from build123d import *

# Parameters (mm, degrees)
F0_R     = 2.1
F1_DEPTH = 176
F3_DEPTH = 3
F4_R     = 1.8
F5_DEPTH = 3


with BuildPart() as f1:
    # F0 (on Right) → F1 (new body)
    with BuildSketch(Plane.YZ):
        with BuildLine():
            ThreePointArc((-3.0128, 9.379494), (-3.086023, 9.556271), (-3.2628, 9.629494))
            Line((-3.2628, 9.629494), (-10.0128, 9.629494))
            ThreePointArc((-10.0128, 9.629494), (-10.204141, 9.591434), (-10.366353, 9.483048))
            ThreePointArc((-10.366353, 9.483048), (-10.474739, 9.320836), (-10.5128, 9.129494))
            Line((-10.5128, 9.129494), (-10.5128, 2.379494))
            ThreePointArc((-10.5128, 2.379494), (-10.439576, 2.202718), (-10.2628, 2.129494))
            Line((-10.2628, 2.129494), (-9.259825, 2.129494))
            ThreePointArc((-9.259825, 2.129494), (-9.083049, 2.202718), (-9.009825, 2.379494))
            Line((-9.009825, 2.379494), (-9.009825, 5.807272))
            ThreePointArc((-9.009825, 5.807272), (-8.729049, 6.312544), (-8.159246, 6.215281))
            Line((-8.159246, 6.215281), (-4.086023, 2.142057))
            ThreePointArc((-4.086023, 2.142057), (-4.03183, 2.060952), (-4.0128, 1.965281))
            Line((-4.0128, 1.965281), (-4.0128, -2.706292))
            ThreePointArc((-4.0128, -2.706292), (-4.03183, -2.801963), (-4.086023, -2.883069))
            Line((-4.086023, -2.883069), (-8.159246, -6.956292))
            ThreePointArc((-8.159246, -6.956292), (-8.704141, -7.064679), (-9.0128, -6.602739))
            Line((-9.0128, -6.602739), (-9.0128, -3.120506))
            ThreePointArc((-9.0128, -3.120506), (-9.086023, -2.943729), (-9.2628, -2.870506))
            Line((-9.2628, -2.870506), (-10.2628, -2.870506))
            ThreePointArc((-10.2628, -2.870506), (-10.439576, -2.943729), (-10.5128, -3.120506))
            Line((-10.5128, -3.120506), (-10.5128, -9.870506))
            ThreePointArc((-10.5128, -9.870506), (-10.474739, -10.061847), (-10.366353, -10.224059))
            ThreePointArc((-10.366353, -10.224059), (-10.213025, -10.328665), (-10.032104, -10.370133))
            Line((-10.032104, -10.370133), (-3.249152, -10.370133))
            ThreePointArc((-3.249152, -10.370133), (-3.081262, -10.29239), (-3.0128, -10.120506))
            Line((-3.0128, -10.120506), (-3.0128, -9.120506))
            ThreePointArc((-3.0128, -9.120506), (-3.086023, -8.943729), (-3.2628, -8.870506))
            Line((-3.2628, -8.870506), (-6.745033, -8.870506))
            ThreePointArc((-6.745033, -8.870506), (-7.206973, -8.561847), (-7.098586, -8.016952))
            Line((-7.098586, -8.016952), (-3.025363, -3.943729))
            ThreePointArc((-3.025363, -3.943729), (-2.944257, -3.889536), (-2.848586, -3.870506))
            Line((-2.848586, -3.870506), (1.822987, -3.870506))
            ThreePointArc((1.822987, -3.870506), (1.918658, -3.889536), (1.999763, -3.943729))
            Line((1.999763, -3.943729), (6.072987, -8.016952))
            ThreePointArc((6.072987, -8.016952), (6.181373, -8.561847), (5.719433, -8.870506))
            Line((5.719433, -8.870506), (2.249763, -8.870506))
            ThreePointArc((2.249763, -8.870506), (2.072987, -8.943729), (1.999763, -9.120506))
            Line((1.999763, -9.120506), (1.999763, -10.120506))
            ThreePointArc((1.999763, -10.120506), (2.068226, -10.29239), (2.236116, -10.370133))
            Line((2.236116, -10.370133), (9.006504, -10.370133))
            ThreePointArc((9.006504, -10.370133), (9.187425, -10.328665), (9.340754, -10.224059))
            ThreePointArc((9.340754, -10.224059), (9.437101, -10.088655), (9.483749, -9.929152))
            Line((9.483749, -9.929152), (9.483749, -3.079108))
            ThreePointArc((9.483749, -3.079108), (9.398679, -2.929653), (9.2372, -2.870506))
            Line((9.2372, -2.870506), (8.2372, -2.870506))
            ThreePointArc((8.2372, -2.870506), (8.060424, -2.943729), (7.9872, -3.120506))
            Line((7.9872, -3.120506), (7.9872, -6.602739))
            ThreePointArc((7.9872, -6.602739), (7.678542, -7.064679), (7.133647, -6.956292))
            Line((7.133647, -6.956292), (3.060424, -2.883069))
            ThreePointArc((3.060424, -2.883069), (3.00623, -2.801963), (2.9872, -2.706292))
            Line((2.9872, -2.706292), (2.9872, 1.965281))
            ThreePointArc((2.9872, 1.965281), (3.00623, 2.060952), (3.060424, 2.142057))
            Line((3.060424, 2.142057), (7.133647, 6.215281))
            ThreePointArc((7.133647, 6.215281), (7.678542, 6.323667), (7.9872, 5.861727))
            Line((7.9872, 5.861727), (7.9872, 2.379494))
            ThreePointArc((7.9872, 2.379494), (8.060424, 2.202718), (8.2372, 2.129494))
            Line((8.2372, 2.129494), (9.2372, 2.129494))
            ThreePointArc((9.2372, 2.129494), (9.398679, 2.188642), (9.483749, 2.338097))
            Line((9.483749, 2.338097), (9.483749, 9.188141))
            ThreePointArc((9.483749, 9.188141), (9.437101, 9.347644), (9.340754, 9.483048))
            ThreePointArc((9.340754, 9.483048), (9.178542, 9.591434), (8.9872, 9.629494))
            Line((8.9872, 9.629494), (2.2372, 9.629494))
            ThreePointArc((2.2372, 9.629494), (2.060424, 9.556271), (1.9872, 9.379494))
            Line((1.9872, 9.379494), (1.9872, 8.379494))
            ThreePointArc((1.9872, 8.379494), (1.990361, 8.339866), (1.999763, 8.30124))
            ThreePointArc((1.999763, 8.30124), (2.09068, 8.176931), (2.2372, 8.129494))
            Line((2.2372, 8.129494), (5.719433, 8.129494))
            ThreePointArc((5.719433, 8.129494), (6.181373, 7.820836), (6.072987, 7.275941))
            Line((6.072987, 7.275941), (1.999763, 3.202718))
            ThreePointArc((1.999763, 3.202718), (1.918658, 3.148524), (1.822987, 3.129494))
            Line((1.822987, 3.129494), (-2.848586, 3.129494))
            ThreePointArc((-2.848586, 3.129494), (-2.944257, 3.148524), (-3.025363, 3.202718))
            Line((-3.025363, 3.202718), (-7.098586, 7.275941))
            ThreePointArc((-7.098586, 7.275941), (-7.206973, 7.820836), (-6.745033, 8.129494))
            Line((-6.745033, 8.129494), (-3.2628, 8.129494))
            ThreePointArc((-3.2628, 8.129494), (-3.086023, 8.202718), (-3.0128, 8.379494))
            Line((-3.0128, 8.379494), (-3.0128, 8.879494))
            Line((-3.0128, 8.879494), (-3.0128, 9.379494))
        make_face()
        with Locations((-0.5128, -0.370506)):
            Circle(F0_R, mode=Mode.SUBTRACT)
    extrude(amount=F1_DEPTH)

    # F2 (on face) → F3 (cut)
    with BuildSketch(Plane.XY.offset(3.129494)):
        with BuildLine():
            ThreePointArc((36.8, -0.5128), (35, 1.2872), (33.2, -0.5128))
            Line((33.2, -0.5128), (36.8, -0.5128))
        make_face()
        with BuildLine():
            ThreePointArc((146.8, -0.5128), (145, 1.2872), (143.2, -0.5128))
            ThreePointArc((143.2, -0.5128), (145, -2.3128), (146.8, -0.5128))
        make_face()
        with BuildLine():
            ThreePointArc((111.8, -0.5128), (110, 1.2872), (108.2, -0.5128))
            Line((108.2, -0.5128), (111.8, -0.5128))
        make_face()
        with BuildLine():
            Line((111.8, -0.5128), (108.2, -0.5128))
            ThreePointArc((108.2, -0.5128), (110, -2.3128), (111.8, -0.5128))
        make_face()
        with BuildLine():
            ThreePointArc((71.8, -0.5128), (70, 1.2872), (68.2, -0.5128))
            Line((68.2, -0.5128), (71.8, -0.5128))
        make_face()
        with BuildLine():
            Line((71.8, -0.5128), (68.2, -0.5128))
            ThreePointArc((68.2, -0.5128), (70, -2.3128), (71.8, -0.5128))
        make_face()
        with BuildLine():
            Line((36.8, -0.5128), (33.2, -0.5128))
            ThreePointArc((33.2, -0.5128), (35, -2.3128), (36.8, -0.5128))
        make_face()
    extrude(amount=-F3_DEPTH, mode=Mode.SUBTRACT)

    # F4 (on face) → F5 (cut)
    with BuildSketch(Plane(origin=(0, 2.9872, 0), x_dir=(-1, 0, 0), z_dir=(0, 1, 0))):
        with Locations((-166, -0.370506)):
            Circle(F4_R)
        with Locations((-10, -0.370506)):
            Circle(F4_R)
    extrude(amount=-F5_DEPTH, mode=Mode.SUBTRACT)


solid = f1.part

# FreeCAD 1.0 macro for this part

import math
import FreeCAD as App
import Part
import Sketcher
from FreeCAD import Vector

doc = App.newDocument("Part")
params = doc.addObject("Spreadsheet::Sheet", "Params")
for row, (alias, value) in enumerate([
    ("sketch1_diameter", "4.2 mm"),
    ("sketch1_radius", "0.500002 mm"),
    ("sketch1_width", "1 mm"),
    ("sketch1_radius2", "0.249999 mm"),
    ("sketch1_width2", "6.75 mm"),
    ("pad1_length", "176 mm"),
    ("sketch2_diameter", "3.6 mm"),
    ("pocket1_length", "3 mm"),
    ("sketch3_diameter", "3.6 mm"),
    ("pocket2_length", "3 mm"),
], start=1):
    params.set(f"A{row}", alias)
    params.set(f"B{row}", "=" + value)
    params.setAlias(f"B{row}", alias)

body = doc.addObject("PartDesign::Body", "Body")

sketch1 = body.newObject("Sketcher::SketchObject", "Sketch")
sketch1.AttachmentSupport = (doc.getObject("YZ_Plane"), [""])
sketch1.MapMode = "FlatFace"
sketch1.addGeometry(Part.ArcOfCircle(Part.Circle(Vector(-3.26, 9.38, 0), Vector(0, 0, 1), 0.25), math.radians(0), math.radians(90)), False)
sketch1.addGeometry(Part.LineSegment(Vector(-3.26, 9.63, 0), Vector(-10.01, 9.63, 0)), False)
sketch1.addGeometry(Part.ArcOfCircle(Part.Circle(Vector(-10.01, 9.13, 0), Vector(0, 0, 1), 0.5), math.radians(90), math.radians(135)), False)
sketch1.addGeometry(Part.ArcOfCircle(Part.Circle(Vector(-10.01, 9.13, 0), Vector(0, 0, 1), 0.5), math.radians(135), math.radians(180)), False)
sketch1.addGeometry(Part.LineSegment(Vector(-10.51, 9.13, 0), Vector(-10.51, 2.38, 0)), False)
sketch1.addGeometry(Part.ArcOfCircle(Part.Circle(Vector(-10.26, 2.38, 0), Vector(0, 0, 1), 0.25), math.radians(-180), math.radians(-90)), False)
sketch1.addGeometry(Part.LineSegment(Vector(-10.26, 2.13, 0), Vector(-9.26, 2.13, 0)), False)
sketch1.addGeometry(Part.ArcOfCircle(Part.Circle(Vector(-9.26, 2.38, 0), Vector(0, 0, 1), 0.25), math.radians(-90), math.radians(0)), False)
sketch1.addGeometry(Part.LineSegment(Vector(-9.01, 2.38, 0), Vector(-9.01, 5.81, 0)), False)
sketch1.addGeometry(Part.ArcOfCircle(Part.Circle(Vector(-8.51, 5.86, 0), Vector(0, 0, 1), 0.5), math.radians(45), math.radians(186)), False)
sketch1.addGeometry(Part.LineSegment(Vector(-8.16, 6.22, 0), Vector(-4.09, 2.14, 0)), False)
sketch1.addGeometry(Part.ArcOfCircle(Part.Circle(Vector(-4.26, 1.97, 0), Vector(0, 0, 1), 0.25), math.radians(0), math.radians(45)), False)
sketch1.addGeometry(Part.LineSegment(Vector(-4.01, 1.97, 0), Vector(-4.01, -2.71, 0)), False)
sketch1.addGeometry(Part.ArcOfCircle(Part.Circle(Vector(-4.26, -2.71, 0), Vector(0, 0, 1), 0.25), math.radians(-45), math.radians(0)), False)
sketch1.addGeometry(Part.LineSegment(Vector(-4.09, -2.88, 0), Vector(-8.16, -6.96, 0)), False)
sketch1.addGeometry(Part.ArcOfCircle(Part.Circle(Vector(-8.51, -6.6, 0), Vector(0, 0, 1), 0.5), math.radians(-180), math.radians(-45)), False)
sketch1.addGeometry(Part.LineSegment(Vector(-9.01, -6.6, 0), Vector(-9.01, -3.12, 0)), False)
sketch1.addGeometry(Part.ArcOfCircle(Part.Circle(Vector(-9.26, -3.12, 0), Vector(0, 0, 1), 0.25), math.radians(0), math.radians(90)), False)
sketch1.addGeometry(Part.LineSegment(Vector(-9.26, -2.87, 0), Vector(-10.26, -2.87, 0)), False)
sketch1.addGeometry(Part.ArcOfCircle(Part.Circle(Vector(-10.26, -3.12, 0), Vector(0, 0, 1), 0.25), math.radians(90), math.radians(180)), False)
sketch1.addGeometry(Part.LineSegment(Vector(-10.51, -3.12, 0), Vector(-10.51, -9.87, 0)), False)
sketch1.addGeometry(Part.ArcOfCircle(Part.Circle(Vector(-10.01, -9.87, 0), Vector(0, 0, 1), 0.5), math.radians(-180), math.radians(-135)), False)
sketch1.addGeometry(Part.ArcOfCircle(Part.Circle(Vector(-10.01, -9.87, 0), Vector(0, 0, 1), 0.5), math.radians(-135), math.radians(-92)), False)
sketch1.addGeometry(Part.LineSegment(Vector(-10.03, -10.37, 0), Vector(-3.25, -10.37, 0)), False)
sketch1.addGeometry(Part.ArcOfCircle(Part.Circle(Vector(-3.26, -10.12, 0), Vector(0, 0, 1), 0.25), math.radians(-87), math.radians(0)), False)
sketch1.addGeometry(Part.LineSegment(Vector(-3.01, -10.12, 0), Vector(-3.01, -9.12, 0)), False)
sketch1.addGeometry(Part.ArcOfCircle(Part.Circle(Vector(-3.26, -9.12, 0), Vector(0, 0, 1), 0.25), math.radians(0), math.radians(90)), False)
sketch1.addGeometry(Part.LineSegment(Vector(-3.26, -8.87, 0), Vector(-6.75, -8.87, 0)), False)
sketch1.addGeometry(Part.ArcOfCircle(Part.Circle(Vector(-6.75, -8.37, 0), Vector(0, 0, 1), 0.5), math.radians(135), math.radians(270)), False)
sketch1.addGeometry(Part.LineSegment(Vector(-7.1, -8.02, 0), Vector(-3.03, -3.94, 0)), False)
sketch1.addGeometry(Part.ArcOfCircle(Part.Circle(Vector(-2.85, -4.12, 0), Vector(0, 0, 1), 0.25), math.radians(90), math.radians(135)), False)
sketch1.addGeometry(Part.LineSegment(Vector(-2.85, -3.87, 0), Vector(1.82, -3.87, 0)), False)
sketch1.addGeometry(Part.ArcOfCircle(Part.Circle(Vector(1.82, -4.12, 0), Vector(0, 0, 1), 0.25), math.radians(45), math.radians(90)), False)
sketch1.addGeometry(Part.LineSegment(Vector(2, -3.94, 0), Vector(6.07, -8.02, 0)), False)
sketch1.addGeometry(Part.ArcOfCircle(Part.Circle(Vector(5.72, -8.37, 0), Vector(0, 0, 1), 0.5), math.radians(-90), math.radians(45)), False)
sketch1.addGeometry(Part.LineSegment(Vector(5.72, -8.87, 0), Vector(2.25, -8.87, 0)), False)
sketch1.addGeometry(Part.ArcOfCircle(Part.Circle(Vector(2.25, -9.12, 0), Vector(0, 0, 1), 0.25), math.radians(90), math.radians(180)), False)
sketch1.addGeometry(Part.LineSegment(Vector(2, -9.12, 0), Vector(2, -10.12, 0)), False)
sketch1.addGeometry(Part.ArcOfCircle(Part.Circle(Vector(2.25, -10.12, 0), Vector(0, 0, 1), 0.25), math.radians(-180), math.radians(-93)), False)
sketch1.addGeometry(Part.LineSegment(Vector(2.24, -10.37, 0), Vector(9.01, -10.37, 0)), False)
sketch1.addGeometry(Part.ArcOfCircle(Part.Circle(Vector(8.99, -9.87, 0), Vector(0, 0, 1), 0.5), math.radians(-88), math.radians(-45)), False)
sketch1.addGeometry(Part.ArcOfCircle(Part.Circle(Vector(8.99, -9.87, 0), Vector(0, 0, 1), 0.5), math.radians(-45), math.radians(-7)), False)
sketch1.addGeometry(Part.LineSegment(Vector(9.48, -9.93, 0), Vector(9.48, -3.08, 0)), False)
sketch1.addGeometry(Part.ArcOfCircle(Part.Circle(Vector(9.24, -3.12, 0), Vector(0, 0, 1), 0.25), math.radians(10), math.radians(90)), False)
sketch1.addGeometry(Part.LineSegment(Vector(9.24, -2.87, 0), Vector(8.24, -2.87, 0)), False)
sketch1.addGeometry(Part.ArcOfCircle(Part.Circle(Vector(8.24, -3.12, 0), Vector(0, 0, 1), 0.25), math.radians(90), math.radians(180)), False)
sketch1.addGeometry(Part.LineSegment(Vector(7.99, -3.12, 0), Vector(7.99, -6.6, 0)), False)
sketch1.addGeometry(Part.ArcOfCircle(Part.Circle(Vector(7.49, -6.6, 0), Vector(0, 0, 1), 0.5), math.radians(-135), math.radians(0)), False)
sketch1.addGeometry(Part.LineSegment(Vector(7.13, -6.96, 0), Vector(3.06, -2.88, 0)), False)
sketch1.addGeometry(Part.ArcOfCircle(Part.Circle(Vector(3.24, -2.71, 0), Vector(0, 0, 1), 0.25), math.radians(180), math.radians(225)), False)
sketch1.addGeometry(Part.LineSegment(Vector(2.99, -2.71, 0), Vector(2.99, 1.97, 0)), False)
sketch1.addGeometry(Part.ArcOfCircle(Part.Circle(Vector(3.24, 1.97, 0), Vector(0, 0, 1), 0.25), math.radians(135), math.radians(180)), False)
sketch1.addGeometry(Part.LineSegment(Vector(3.06, 2.14, 0), Vector(7.13, 6.22, 0)), False)
sketch1.addGeometry(Part.ArcOfCircle(Part.Circle(Vector(7.49, 5.86, 0), Vector(0, 0, 1), 0.5), math.radians(0), math.radians(135)), False)
sketch1.addGeometry(Part.LineSegment(Vector(7.99, 5.86, 0), Vector(7.99, 2.38, 0)), False)
sketch1.addGeometry(Part.ArcOfCircle(Part.Circle(Vector(8.24, 2.38, 0), Vector(0, 0, 1), 0.25), math.radians(-180), math.radians(-90)), False)
sketch1.addGeometry(Part.LineSegment(Vector(8.24, 2.13, 0), Vector(9.24, 2.13, 0)), False)
sketch1.addGeometry(Part.ArcOfCircle(Part.Circle(Vector(9.24, 2.38, 0), Vector(0, 0, 1), 0.25), math.radians(-90), math.radians(-10)), False)
sketch1.addGeometry(Part.LineSegment(Vector(9.48, 2.34, 0), Vector(9.48, 9.19, 0)), False)
sketch1.addGeometry(Part.ArcOfCircle(Part.Circle(Vector(8.99, 9.13, 0), Vector(0, 0, 1), 0.5), math.radians(7), math.radians(45)), False)
sketch1.addGeometry(Part.ArcOfCircle(Part.Circle(Vector(8.99, 9.13, 0), Vector(0, 0, 1), 0.5), math.radians(45), math.radians(90)), False)
sketch1.addGeometry(Part.LineSegment(Vector(8.99, 9.63, 0), Vector(2.24, 9.63, 0)), False)
sketch1.addGeometry(Part.ArcOfCircle(Part.Circle(Vector(2.24, 9.38, 0), Vector(0, 0, 1), 0.25), math.radians(90), math.radians(180)), False)
sketch1.addGeometry(Part.LineSegment(Vector(1.99, 9.38, 0), Vector(1.99, 8.38, 0)), False)
sketch1.addGeometry(Part.ArcOfCircle(Part.Circle(Vector(2.24, 8.38, 0), Vector(0, 0, 1), 0.25), math.radians(-180), math.radians(-161.76)), False)
sketch1.addGeometry(Part.ArcOfCircle(Part.Circle(Vector(2.24, 8.38, 0), Vector(0, 0, 1), 0.25), math.radians(-162), math.radians(-90)), False)
sketch1.addGeometry(Part.LineSegment(Vector(2.24, 8.13, 0), Vector(5.72, 8.13, 0)), False)
sketch1.addGeometry(Part.ArcOfCircle(Part.Circle(Vector(5.72, 7.63, 0), Vector(0, 0, 1), 0.5), math.radians(-45), math.radians(90)), False)
sketch1.addGeometry(Part.LineSegment(Vector(6.07, 7.28, 0), Vector(2, 3.2, 0)), False)
sketch1.addGeometry(Part.ArcOfCircle(Part.Circle(Vector(1.82, 3.38, 0), Vector(0, 0, 1), 0.25), math.radians(-90), math.radians(-45)), False)
sketch1.addGeometry(Part.LineSegment(Vector(1.82, 3.13, 0), Vector(-2.85, 3.13, 0)), False)
sketch1.addGeometry(Part.ArcOfCircle(Part.Circle(Vector(-2.85, 3.38, 0), Vector(0, 0, 1), 0.25), math.radians(-135), math.radians(-90)), False)
sketch1.addGeometry(Part.LineSegment(Vector(-3.03, 3.2, 0), Vector(-7.1, 7.28, 0)), False)
sketch1.addGeometry(Part.ArcOfCircle(Part.Circle(Vector(-6.75, 7.63, 0), Vector(0, 0, 1), 0.5), math.radians(90), math.radians(225)), False)
sketch1.addGeometry(Part.LineSegment(Vector(-6.75, 8.13, 0), Vector(-3.26, 8.13, 0)), False)
sketch1.addGeometry(Part.ArcOfCircle(Part.Circle(Vector(-3.26, 8.38, 0), Vector(0, 0, 1), 0.25), math.radians(-90), math.radians(0)), False)
sketch1.addGeometry(Part.LineSegment(Vector(-3.01, 8.38, 0), Vector(-3.01, 9.38, 0)), False)
sketch1.addGeometry(Part.Circle(Vector(-0.51, -0.37, 0), Vector(0, 0, 1), 2.1), False)
sketch1.addConstraint(Sketcher.Constraint("Coincident", 0, 2, 1, 1))
sketch1.addConstraint(Sketcher.Constraint("Tangent", 1, 2, 2, 1))
sketch1.addConstraint(Sketcher.Constraint("Coincident", 2, 2, 3, 1))
sketch1.addConstraint(Sketcher.Constraint("Coincident", 3, 2, 4, 1))
sketch1.addConstraint(Sketcher.Constraint("Coincident", 4, 2, 5, 1))
sketch1.addConstraint(Sketcher.Constraint("Coincident", 5, 2, 6, 1))
sketch1.addConstraint(Sketcher.Constraint("Coincident", 6, 2, 7, 1))
sketch1.addConstraint(Sketcher.Constraint("Coincident", 7, 2, 8, 1))
sketch1.addConstraint(Sketcher.Constraint("Coincident", 8, 2, 9, 2))
sketch1.addConstraint(Sketcher.Constraint("Tangent", 9, 1, 10, 1))
sketch1.addConstraint(Sketcher.Constraint("Coincident", 10, 2, 11, 2))
sketch1.addConstraint(Sketcher.Constraint("Coincident", 11, 1, 12, 1))
sketch1.addConstraint(Sketcher.Constraint("Tangent", 12, 2, 13, 2))
sketch1.addConstraint(Sketcher.Constraint("Coincident", 13, 1, 14, 1))
sketch1.addConstraint(Sketcher.Constraint("Tangent", 14, 2, 15, 2))
sketch1.addConstraint(Sketcher.Constraint("Tangent", 15, 1, 16, 1))
sketch1.addConstraint(Sketcher.Constraint("Coincident", 16, 2, 17, 1))
sketch1.addConstraint(Sketcher.Constraint("Coincident", 17, 2, 18, 1))
sketch1.addConstraint(Sketcher.Constraint("Coincident", 18, 2, 19, 1))
sketch1.addConstraint(Sketcher.Constraint("Coincident", 19, 2, 20, 1))
sketch1.addConstraint(Sketcher.Constraint("Coincident", 20, 2, 21, 1))
sketch1.addConstraint(Sketcher.Constraint("Coincident", 21, 2, 22, 1))
sketch1.addConstraint(Sketcher.Constraint("Coincident", 22, 2, 23, 1))
sketch1.addConstraint(Sketcher.Constraint("Coincident", 23, 2, 24, 1))
sketch1.addConstraint(Sketcher.Constraint("Coincident", 24, 2, 25, 1))
sketch1.addConstraint(Sketcher.Constraint("Coincident", 25, 2, 26, 1))
sketch1.addConstraint(Sketcher.Constraint("Coincident", 26, 2, 27, 1))
sketch1.addConstraint(Sketcher.Constraint("Tangent", 27, 2, 28, 2))
sketch1.addConstraint(Sketcher.Constraint("Tangent", 28, 1, 29, 1))
sketch1.addConstraint(Sketcher.Constraint("Coincident", 29, 2, 30, 2))
sketch1.addConstraint(Sketcher.Constraint("Tangent", 30, 1, 31, 1))
sketch1.addConstraint(Sketcher.Constraint("Coincident", 31, 2, 32, 2))
sketch1.addConstraint(Sketcher.Constraint("Coincident", 32, 1, 33, 1))
sketch1.addConstraint(Sketcher.Constraint("Tangent", 33, 2, 34, 2))
sketch1.addConstraint(Sketcher.Constraint("Tangent", 34, 1, 35, 1))
sketch1.addConstraint(Sketcher.Constraint("Coincident", 35, 2, 36, 1))
sketch1.addConstraint(Sketcher.Constraint("Coincident", 36, 2, 37, 1))
sketch1.addConstraint(Sketcher.Constraint("Coincident", 37, 2, 38, 1))
sketch1.addConstraint(Sketcher.Constraint("Coincident", 38, 2, 39, 1))
sketch1.addConstraint(Sketcher.Constraint("Coincident", 39, 2, 40, 1))
sketch1.addConstraint(Sketcher.Constraint("Coincident", 40, 2, 41, 1))
sketch1.addConstraint(Sketcher.Constraint("Coincident", 41, 2, 42, 1))
sketch1.addConstraint(Sketcher.Constraint("Coincident", 42, 2, 43, 1))
sketch1.addConstraint(Sketcher.Constraint("Coincident", 43, 2, 44, 1))
sketch1.addConstraint(Sketcher.Constraint("Coincident", 44, 2, 45, 1))
sketch1.addConstraint(Sketcher.Constraint("Coincident", 45, 2, 46, 1))
sketch1.addConstraint(Sketcher.Constraint("Tangent", 46, 2, 47, 2))
sketch1.addConstraint(Sketcher.Constraint("Coincident", 47, 1, 48, 1))
sketch1.addConstraint(Sketcher.Constraint("Coincident", 48, 2, 49, 2))
sketch1.addConstraint(Sketcher.Constraint("Coincident", 49, 1, 50, 1))
sketch1.addConstraint(Sketcher.Constraint("Coincident", 50, 2, 51, 2))
sketch1.addConstraint(Sketcher.Constraint("Coincident", 51, 1, 52, 1))
sketch1.addConstraint(Sketcher.Constraint("Tangent", 52, 2, 53, 2))
sketch1.addConstraint(Sketcher.Constraint("Tangent", 53, 1, 54, 1))
sketch1.addConstraint(Sketcher.Constraint("Coincident", 54, 2, 55, 1))
sketch1.addConstraint(Sketcher.Constraint("Coincident", 55, 2, 56, 1))
sketch1.addConstraint(Sketcher.Constraint("Tangent", 56, 2, 57, 1))
sketch1.addConstraint(Sketcher.Constraint("Coincident", 57, 2, 58, 1))
sketch1.addConstraint(Sketcher.Constraint("Coincident", 58, 2, 59, 1))
sketch1.addConstraint(Sketcher.Constraint("Coincident", 59, 2, 60, 1))
sketch1.addConstraint(Sketcher.Constraint("Tangent", 60, 2, 61, 1))
sketch1.addConstraint(Sketcher.Constraint("Coincident", 61, 2, 62, 1))
sketch1.addConstraint(Sketcher.Constraint("Coincident", 62, 2, 63, 1))
sketch1.addConstraint(Sketcher.Constraint("Coincident", 63, 2, 64, 1))
sketch1.addConstraint(Sketcher.Constraint("Coincident", 64, 2, 65, 1))
sketch1.addConstraint(Sketcher.Constraint("Coincident", 65, 2, 66, 1))
sketch1.addConstraint(Sketcher.Constraint("Tangent", 66, 2, 67, 2))
sketch1.addConstraint(Sketcher.Constraint("Tangent", 67, 1, 68, 1))
sketch1.addConstraint(Sketcher.Constraint("Coincident", 68, 2, 69, 2))
sketch1.addConstraint(Sketcher.Constraint("Coincident", 69, 1, 70, 1))
sketch1.addConstraint(Sketcher.Constraint("Coincident", 70, 2, 71, 2))
sketch1.addConstraint(Sketcher.Constraint("Coincident", 71, 1, 72, 1))
sketch1.addConstraint(Sketcher.Constraint("Coincident", 72, 2, 73, 2))
sketch1.addConstraint(Sketcher.Constraint("Tangent", 73, 1, 74, 1))
sketch1.addConstraint(Sketcher.Constraint("Coincident", 74, 2, 75, 1))
sketch1.addConstraint(Sketcher.Constraint("Coincident", 75, 2, 76, 1))
sketch1.addConstraint(Sketcher.Constraint("Coincident", 76, 2, 0, 1))
sketch1.addConstraint(Sketcher.Constraint("Horizontal", 1))
sketch1.addConstraint(Sketcher.Constraint("Vertical", 4))
sketch1.addConstraint(Sketcher.Constraint("Horizontal", 6))
sketch1.addConstraint(Sketcher.Constraint("Vertical", 8))
sketch1.addConstraint(Sketcher.Constraint("Vertical", 12))
sketch1.addConstraint(Sketcher.Constraint("Vertical", 16))
sketch1.addConstraint(Sketcher.Constraint("Horizontal", 18))
sketch1.addConstraint(Sketcher.Constraint("Vertical", 20))
sketch1.addConstraint(Sketcher.Constraint("Horizontal", 23))
sketch1.addConstraint(Sketcher.Constraint("Vertical", 25))
sketch1.addConstraint(Sketcher.Constraint("Horizontal", 27))
sketch1.addConstraint(Sketcher.Constraint("Horizontal", 31))
sketch1.addConstraint(Sketcher.Constraint("Horizontal", 35))
sketch1.addConstraint(Sketcher.Constraint("Vertical", 37))
sketch1.addConstraint(Sketcher.Constraint("Horizontal", 39))
sketch1.addConstraint(Sketcher.Constraint("Vertical", 42))
sketch1.addConstraint(Sketcher.Constraint("Horizontal", 44))
sketch1.addConstraint(Sketcher.Constraint("Vertical", 46))
sketch1.addConstraint(Sketcher.Constraint("Vertical", 50))
sketch1.addConstraint(Sketcher.Constraint("Vertical", 54))
sketch1.addConstraint(Sketcher.Constraint("Horizontal", 56))
sketch1.addConstraint(Sketcher.Constraint("Vertical", 58))
sketch1.addConstraint(Sketcher.Constraint("Horizontal", 61))
sketch1.addConstraint(Sketcher.Constraint("Vertical", 63))
sketch1.addConstraint(Sketcher.Constraint("Horizontal", 66))
sketch1.addConstraint(Sketcher.Constraint("Horizontal", 70))
sketch1.addConstraint(Sketcher.Constraint("Horizontal", 74))
sketch1.addConstraint(Sketcher.Constraint("Vertical", 76))
sketch1.addConstraint(Sketcher.Constraint("Coincident", 3, 3, 2, 3))
sketch1.addConstraint(Sketcher.Constraint("Coincident", 41, 3, 40, 3))
sketch1.addConstraint(Sketcher.Constraint("Coincident", 60, 3, 59, 3))
sketch1.addConstraint(Sketcher.Constraint("Equal", 5, 7))
sketch1.addConstraint(Sketcher.Constraint("Equal", 2, 9))
sketch1.addConstraint(Sketcher.Constraint("Equal", 7, 13))
sketch1.addConstraint(Sketcher.Constraint("Equal", 9, 15))
sketch1.addConstraint(Sketcher.Constraint("Equal", 13, 17))
sketch1.addConstraint(Sketcher.Constraint("Equal", 17, 19))
sketch1.addConstraint(Sketcher.Constraint("Equal", 3, 21))
sketch1.addConstraint(Sketcher.Constraint("Equal", 15, 22))
sketch1.addConstraint(Sketcher.Constraint("Equal", 19, 24))
sketch1.addConstraint(Sketcher.Constraint("Equal", 24, 26))
sketch1.addConstraint(Sketcher.Constraint("Equal", 22, 28))
sketch1.addConstraint(Sketcher.Constraint("Equal", 26, 30))
sketch1.addConstraint(Sketcher.Constraint("Equal", 11, 32))
sketch1.addConstraint(Sketcher.Constraint("Equal", 28, 34))
sketch1.addConstraint(Sketcher.Constraint("Equal", 30, 36))
sketch1.addConstraint(Sketcher.Constraint("Equal", 36, 38))
sketch1.addConstraint(Sketcher.Constraint("Equal", 2, 40))
sketch1.addConstraint(Sketcher.Constraint("Equal", 38, 43))
sketch1.addConstraint(Sketcher.Constraint("Equal", 43, 45))
sketch1.addConstraint(Sketcher.Constraint("Equal", 34, 47))
sketch1.addConstraint(Sketcher.Constraint("Equal", 32, 49))
sketch1.addConstraint(Sketcher.Constraint("Equal", 47, 53))
sketch1.addConstraint(Sketcher.Constraint("Equal", 45, 55))
sketch1.addConstraint(Sketcher.Constraint("Equal", 55, 57))
sketch1.addConstraint(Sketcher.Constraint("Equal", 41, 59))
sketch1.addConstraint(Sketcher.Constraint("Equal", 57, 62))
sketch1.addConstraint(Sketcher.Constraint("Equal", 62, 65))
sketch1.addConstraint(Sketcher.Constraint("Equal", 60, 67))
sketch1.addConstraint(Sketcher.Constraint("Equal", 51, 69))
sketch1.addConstraint(Sketcher.Constraint("Equal", 49, 71))
sketch1.addConstraint(Sketcher.Constraint("Equal", 67, 73))
sketch1.addConstraint(Sketcher.Constraint("Equal", 65, 75))
sketch1.addConstraint(Sketcher.Constraint("Perpendicular", 10, 14))
sketch1.addConstraint(Sketcher.Constraint("Parallel", 14, 29))
sketch1.addConstraint(Sketcher.Constraint("Perpendicular", 29, 33))
sketch1.addConstraint(Sketcher.Constraint("Parallel", 33, 48))
sketch1.addConstraint(Sketcher.Constraint("Perpendicular", 48, 52))
sketch1.addConstraint(Sketcher.Constraint("Parallel", 52, 68))
sketch1.addConstraint(Sketcher.Constraint("Perpendicular", 68, 72))
sketch1.addConstraint(Sketcher.Constraint("Horizontal", 28, 3, 34, 3))
sketch1.addConstraint(Sketcher.Constraint("Horizontal", 24, 3, 38, 3))
sketch1.addConstraint(Sketcher.Constraint("Horizontal", 21, 3, 40, 3))
sketch1.addConstraint(Sketcher.Constraint("Horizontal", 19, 3, 43, 3))
sketch1.addConstraint(Sketcher.Constraint("Horizontal", 15, 3, 47, 3))
sketch1.addConstraint(Sketcher.Constraint("Horizontal", 13, 3, 49, 3))
sketch1.addConstraint(Sketcher.Constraint("Horizontal", 11, 3, 51, 3))
sketch1.addConstraint(Sketcher.Constraint("Horizontal", 9, 3, 53, 3))
sketch1.addConstraint(Sketcher.Constraint("Horizontal", 7, 3, 55, 3))
sketch1.addConstraint(Sketcher.Constraint("Horizontal", 3, 3, 59, 3))
sketch1.addConstraint(Sketcher.Constraint("Horizontal", 0, 3, 62, 3))
sketch1.addConstraint(Sketcher.Constraint("Horizontal", 67, 3, 73, 3))
sketch1.addConstraint(Sketcher.Constraint("Horizontal", 60, 3, 3, 2))
sketch1.addConstraint(Sketcher.Constraint("Horizontal", 57, 3, 4, 2))
sketch1.addConstraint(Sketcher.Constraint("Horizontal", 4, 2, 7, 2))
sketch1.addConstraint(Sketcher.Constraint("Horizontal", 45, 3, 16, 2))
sketch1.addConstraint(Sketcher.Constraint("Horizontal", 16, 2, 19, 2))
sketch1.addConstraint(Sketcher.Constraint("Horizontal", 22, 3, 20, 2))
sketch1.addConstraint(Sketcher.Constraint("Horizontal", 38, 3, 24, 2))
sketch1.addConstraint(Sketcher.Constraint("Horizontal", 36, 3, 25, 2))
sketch1.addConstraint(Sketcher.Constraint("Horizontal", 29, 2, 32, 1))
sketch1.addConstraint(Sketcher.Constraint("Horizontal", 28, 1, 33, 2))
sketch1.addConstraint(Sketcher.Constraint("Horizontal", 25, 2, 36, 2))
sketch1.addConstraint(Sketcher.Constraint("Horizontal", 24, 2, 37, 2))
sketch1.addConstraint(Sketcher.Constraint("Horizontal", 23, 2, 38, 2))
sketch1.addConstraint(Sketcher.Constraint("Horizontal", 21, 2, 40, 2))
sketch1.addConstraint(Sketcher.Constraint("Horizontal", 19, 2, 45, 2))
sketch1.addConstraint(Sketcher.Constraint("Horizontal", 14, 2, 47, 1))
sketch1.addConstraint(Sketcher.Constraint("Horizontal", 13, 1, 48, 2))
sketch1.addConstraint(Sketcher.Constraint("Horizontal", 12, 2, 49, 1))
sketch1.addConstraint(Sketcher.Constraint("Horizontal", 11, 1, 50, 2))
sketch1.addConstraint(Sketcher.Constraint("Horizontal", 10, 2, 51, 1))
sketch1.addConstraint(Sketcher.Constraint("Horizontal", 7, 2, 54, 2))
sketch1.addConstraint(Sketcher.Constraint("Horizontal", 2, 2, 59, 2))
sketch1.addConstraint(Sketcher.Constraint("Horizontal", 0, 3, 62, 2))
sketch1.addConstraint(Sketcher.Constraint("Horizontal", 75, 3, 63, 2))
sketch1.addConstraint(Sketcher.Constraint("Horizontal", 68, 2, 71, 1))
sketch1.addConstraint(Sketcher.Constraint("Horizontal", 67, 1, 72, 2))
sketch1.addConstraint(Sketcher.Constraint("Horizontal", 63, 2, 75, 2))
sketch1.addConstraint(Sketcher.Constraint("Horizontal", 62, 2, 76, 2))
sketch1.addConstraint(Sketcher.Constraint("Vertical", 9, 3, 15, 3))
sketch1.addConstraint(Sketcher.Constraint("Vertical", 5, 3, 19, 3))
sketch1.addConstraint(Sketcher.Constraint("Vertical", 2, 3, 22, 3))
sketch1.addConstraint(Sketcher.Constraint("Vertical", 0, 3, 24, 3))
sketch1.addConstraint(Sketcher.Constraint("Vertical", 47, 3, 53, 3))
sketch1.addConstraint(Sketcher.Constraint("Vertical", 43, 3, 57, 3))
sketch1.addConstraint(Sketcher.Constraint("Vertical", 41, 3, 59, 3))
sketch1.addConstraint(Sketcher.Constraint("Vertical", 62, 3, 65, 3))
sketch1.addConstraint(Sketcher.Constraint("Vertical", 34, 3, 67, 3))
sketch1.addConstraint(Sketcher.Constraint("Vertical", 32, 3, 69, 3))
sketch1.addConstraint(Sketcher.Constraint("Vertical", 30, 3, 71, 3))
sketch1.addConstraint(Sketcher.Constraint("Vertical", 75, 3, 0, 2))
sketch1.addConstraint(Sketcher.Constraint("Vertical", 19, 3, 5, 2))
sketch1.addConstraint(Sketcher.Constraint("Vertical", 10, 2, 13, 1))
sketch1.addConstraint(Sketcher.Constraint("Vertical", 5, 2, 18, 2))
sketch1.addConstraint(Sketcher.Constraint("Vertical", 2, 2, 21, 2))
sketch1.addConstraint(Sketcher.Constraint("Vertical", 0, 2, 26, 2))
sketch1.addConstraint(Sketcher.Constraint("Vertical", 32, 3, 31, 2))
sketch1.addConstraint(Sketcher.Constraint("Vertical", 38, 3, 35, 2))
sketch1.addConstraint(Sketcher.Constraint("Vertical", 32, 1, 36, 2))
sketch1.addConstraint(Sketcher.Constraint("Vertical", 57, 3, 43, 2))
sketch1.addConstraint(Sketcher.Constraint("Vertical", 45, 3, 44, 2))
sketch1.addConstraint(Sketcher.Constraint("Vertical", 44, 2, 55, 2))
sketch1.addConstraint(Sketcher.Constraint("Vertical", 42, 2, 57, 2))
sketch1.addConstraint(Sketcher.Constraint("Vertical", 65, 3, 61, 2))
sketch1.addConstraint(Sketcher.Constraint("Vertical", 37, 2, 64, 2))
sketch1.addConstraint(Sketcher.Constraint("Vertical", 61, 2, 65, 2))
sketch1.addConstraint(Sketcher.Constraint("Vertical", 64, 2, 68, 2))
sketch1.addConstraint(Sketcher.Constraint("Vertical", 31, 2, 69, 1))
sketch1.addConstraint(Sketcher.Constraint("Vertical", 30, 1, 70, 2))
sketch1.addConstraint(Sketcher.Constraint("Vertical", 26, 2, 74, 2))
sketch1.addConstraint(Sketcher.Constraint("Equal", 18, 44))
sketch1.addConstraint(Sketcher.Constraint("Equal", 1, 61))
sketch1.addConstraint(Sketcher.Constraint("Equal", 27, 66))
sketch1.addConstraint(Sketcher.Constraint("Equal", 61, 4))
sketch1.addConstraint(Sketcher.Constraint("Equal", 70, 12))
sketch1.addConstraint(Sketcher.Constraint("Equal", 74, 16))
sketch1.addConstraint(Sketcher.Constraint("Equal", 4, 20))
sketch1.addConstraint(Sketcher.Constraint("Equal", 56, 25))
sketch1.addConstraint(Sketcher.Constraint("Equal", 46, 54))
sketch1.addConstraint(Sketcher.Constraint("Equal", 37, 63))
sketch1.addConstraint(Sketcher.Constraint("Equal", 14, 29))
sketch1.addConstraint(Sketcher.Constraint("Diameter", 77, 4.2))
sketch1.addConstraint(Sketcher.Constraint("Radius", 2, 0.500002))
sketch1.addConstraint(Sketcher.Constraint("DistanceX", 18, 2, 18, 1, 1.0))
sketch1.addConstraint(Sketcher.Constraint("Radius", 0, 0.249999))
sketch1.addConstraint(Sketcher.Constraint("DistanceX", 1, 2, 1, 1, 6.75))
sketch1.addConstraint(Sketcher.Constraint("Radius", 51, 0.249992))
sketch1.addConstraint(Sketcher.Constraint("Radius", 64, 0.250022))
sketch1.addConstraint(Sketcher.Constraint("DistanceX", 35, 2, 35, 1, 3.46967))
sketch1.addConstraint(Sketcher.Constraint("DistanceY", 8, 1, 8, 2, 3.427778))
sketch1.addConstraint(Sketcher.Constraint("DistanceX", 0, 3, -1, 1, 3.262799))
sketch1.addConstraint(Sketcher.Constraint("DistanceX", 9, 3, -1, 1, 8.512799))
sketch1.addConstraint(Sketcher.Constraint("DistanceX", 13, 3, -1, 1, 4.262801))
sketch1.addConstraint(Sketcher.Constraint("DistanceY", 21, 3, -1, 1, 9.870502))
sketch1.addConstraint(Sketcher.Constraint("DistanceX", -1, 1, 40, 3, 8.987199))
sketch1.addConstraint(Sketcher.Constraint("DistanceX", -1, 1, 43, 3, 9.237202))
sketch1.addConstraint(Sketcher.Constraint("DistanceX", 77, 3, -1, 1, 0.5128))
sketch1.addConstraint(Sketcher.Constraint("DistanceX", 6, 1, 6, 2, 1.002975))
sketch1.addConstraint(Sketcher.Constraint("DistanceX", 23, 1, 23, 2, 6.782952))
sketch1.addConstraint(Sketcher.Constraint("DistanceX", 27, 2, 27, 1, 3.482233))
sketch1.addConstraint(Sketcher.Constraint("DistanceX", 31, 1, 31, 2, 4.671573))
sketch1.addConstraint(Sketcher.Constraint("DistanceY", 42, 1, 42, 2, 6.850044))
sketch1.addConstraint(Sketcher.Constraint("DistanceY", -1, 1, 3, 3, 9.129491))
sketch1.addConstraint(Sketcher.Constraint("DistanceY", -1, 1, 2, 2, 9.483048))
sketch1.addConstraint(Sketcher.Constraint("DistanceX", 23, 2, -1, 1, 3.249152))
sketch1.addConstraint(Sketcher.Constraint("DistanceY", 77, 3, -1, 1, 0.370506))
sketch1.setExpression("Constraints[229]", "Params.sketch1_diameter")
sketch1.setExpression("Constraints[230]", "Params.sketch1_radius")
sketch1.setExpression("Constraints[231]", "Params.sketch1_width")
sketch1.setExpression("Constraints[232]", "Params.sketch1_radius2")
sketch1.setExpression("Constraints[233]", "Params.sketch1_width2")
pad1 = body.newObject("PartDesign::Pad", "Pad")
pad1.Profile = sketch1
pad1.setExpression("Length", "Params.pad1_length")

sketch2 = body.newObject("Sketcher::SketchObject", "Sketch001")
sketch2.AttachmentSupport = (doc.getObject("XY_Plane"), [""])
sketch2.MapMode = "FlatFace"
sketch2.AttachmentOffset = App.Placement(Vector(0, 0, 3.129494), App.Rotation())
sketch2.addGeometry(Part.Circle(Vector(35, -0.5, 0), Vector(0, 0, 1), 1.8), False)
sketch2.addGeometry(Part.Circle(Vector(145, -0.5, 0), Vector(0, 0, 1), 1.8), False)
sketch2.addGeometry(Part.Circle(Vector(110, -0.5, 0), Vector(0, 0, 1), 1.8), False)
sketch2.addGeometry(Part.Circle(Vector(70, -0.5, 0), Vector(0, 0, 1), 1.8), False)
sketch2.addConstraint(Sketcher.Constraint("Equal", 0, 1))
sketch2.addConstraint(Sketcher.Constraint("Equal", 1, 2))
sketch2.addConstraint(Sketcher.Constraint("Equal", 2, 3))
sketch2.addConstraint(Sketcher.Constraint("Horizontal", 0, 3, 1, 3))
sketch2.addConstraint(Sketcher.Constraint("Horizontal", 1, 3, 2, 3))
sketch2.addConstraint(Sketcher.Constraint("Horizontal", 2, 3, 3, 3))
sketch2.addConstraint(Sketcher.Constraint("Diameter", 0, 3.6))
sketch2.addConstraint(Sketcher.Constraint("DistanceX", -1, 1, 0, 3, 35.0))
sketch2.addConstraint(Sketcher.Constraint("DistanceX", -1, 1, 1, 3, 145.0))
sketch2.addConstraint(Sketcher.Constraint("DistanceX", -1, 1, 2, 3, 110.0))
sketch2.addConstraint(Sketcher.Constraint("DistanceX", -1, 1, 3, 3, 70.0))
sketch2.addConstraint(Sketcher.Constraint("DistanceY", 0, 3, -1, 1, 0.5128))
sketch2.setExpression("Constraints[6]", "Params.sketch2_diameter")
pocket1 = body.newObject("PartDesign::Pocket", "Pocket")
pocket1.Profile = sketch2
pocket1.setExpression("Length", "Params.pocket1_length")

sketch3 = body.newObject("Sketcher::SketchObject", "Sketch002")
sketch3.AttachmentSupport = (doc.getObject("XZ_Plane"), [""])
sketch3.MapMode = "FlatFace"
sketch3.AttachmentOffset = App.Placement(Vector(0, 0, -2.9872), App.Rotation())
sketch3.addGeometry(Part.Circle(Vector(166, -0.4, 0), Vector(0, 0, 1), 1.8), False)
sketch3.addGeometry(Part.Circle(Vector(10, -0.4, 0), Vector(0, 0, 1), 1.8), False)
sketch3.addConstraint(Sketcher.Constraint("Equal", 0, 1))
sketch3.addConstraint(Sketcher.Constraint("Horizontal", 0, 3, 1, 3))
sketch3.addConstraint(Sketcher.Constraint("Diameter", 0, 3.6))
sketch3.addConstraint(Sketcher.Constraint("DistanceX", -1, 1, 0, 3, 166.0))
sketch3.addConstraint(Sketcher.Constraint("DistanceX", -1, 1, 1, 3, 10.0))
sketch3.addConstraint(Sketcher.Constraint("DistanceY", 0, 3, -1, 1, 0.370506))
sketch3.setExpression("Constraints[2]", "Params.sketch3_diameter")
pocket2 = body.newObject("PartDesign::Pocket", "Pocket001")
pocket2.Profile = sketch3
pocket2.setExpression("Length", "Params.pocket2_length")
pocket2.Reversed = True

doc.recompute()
